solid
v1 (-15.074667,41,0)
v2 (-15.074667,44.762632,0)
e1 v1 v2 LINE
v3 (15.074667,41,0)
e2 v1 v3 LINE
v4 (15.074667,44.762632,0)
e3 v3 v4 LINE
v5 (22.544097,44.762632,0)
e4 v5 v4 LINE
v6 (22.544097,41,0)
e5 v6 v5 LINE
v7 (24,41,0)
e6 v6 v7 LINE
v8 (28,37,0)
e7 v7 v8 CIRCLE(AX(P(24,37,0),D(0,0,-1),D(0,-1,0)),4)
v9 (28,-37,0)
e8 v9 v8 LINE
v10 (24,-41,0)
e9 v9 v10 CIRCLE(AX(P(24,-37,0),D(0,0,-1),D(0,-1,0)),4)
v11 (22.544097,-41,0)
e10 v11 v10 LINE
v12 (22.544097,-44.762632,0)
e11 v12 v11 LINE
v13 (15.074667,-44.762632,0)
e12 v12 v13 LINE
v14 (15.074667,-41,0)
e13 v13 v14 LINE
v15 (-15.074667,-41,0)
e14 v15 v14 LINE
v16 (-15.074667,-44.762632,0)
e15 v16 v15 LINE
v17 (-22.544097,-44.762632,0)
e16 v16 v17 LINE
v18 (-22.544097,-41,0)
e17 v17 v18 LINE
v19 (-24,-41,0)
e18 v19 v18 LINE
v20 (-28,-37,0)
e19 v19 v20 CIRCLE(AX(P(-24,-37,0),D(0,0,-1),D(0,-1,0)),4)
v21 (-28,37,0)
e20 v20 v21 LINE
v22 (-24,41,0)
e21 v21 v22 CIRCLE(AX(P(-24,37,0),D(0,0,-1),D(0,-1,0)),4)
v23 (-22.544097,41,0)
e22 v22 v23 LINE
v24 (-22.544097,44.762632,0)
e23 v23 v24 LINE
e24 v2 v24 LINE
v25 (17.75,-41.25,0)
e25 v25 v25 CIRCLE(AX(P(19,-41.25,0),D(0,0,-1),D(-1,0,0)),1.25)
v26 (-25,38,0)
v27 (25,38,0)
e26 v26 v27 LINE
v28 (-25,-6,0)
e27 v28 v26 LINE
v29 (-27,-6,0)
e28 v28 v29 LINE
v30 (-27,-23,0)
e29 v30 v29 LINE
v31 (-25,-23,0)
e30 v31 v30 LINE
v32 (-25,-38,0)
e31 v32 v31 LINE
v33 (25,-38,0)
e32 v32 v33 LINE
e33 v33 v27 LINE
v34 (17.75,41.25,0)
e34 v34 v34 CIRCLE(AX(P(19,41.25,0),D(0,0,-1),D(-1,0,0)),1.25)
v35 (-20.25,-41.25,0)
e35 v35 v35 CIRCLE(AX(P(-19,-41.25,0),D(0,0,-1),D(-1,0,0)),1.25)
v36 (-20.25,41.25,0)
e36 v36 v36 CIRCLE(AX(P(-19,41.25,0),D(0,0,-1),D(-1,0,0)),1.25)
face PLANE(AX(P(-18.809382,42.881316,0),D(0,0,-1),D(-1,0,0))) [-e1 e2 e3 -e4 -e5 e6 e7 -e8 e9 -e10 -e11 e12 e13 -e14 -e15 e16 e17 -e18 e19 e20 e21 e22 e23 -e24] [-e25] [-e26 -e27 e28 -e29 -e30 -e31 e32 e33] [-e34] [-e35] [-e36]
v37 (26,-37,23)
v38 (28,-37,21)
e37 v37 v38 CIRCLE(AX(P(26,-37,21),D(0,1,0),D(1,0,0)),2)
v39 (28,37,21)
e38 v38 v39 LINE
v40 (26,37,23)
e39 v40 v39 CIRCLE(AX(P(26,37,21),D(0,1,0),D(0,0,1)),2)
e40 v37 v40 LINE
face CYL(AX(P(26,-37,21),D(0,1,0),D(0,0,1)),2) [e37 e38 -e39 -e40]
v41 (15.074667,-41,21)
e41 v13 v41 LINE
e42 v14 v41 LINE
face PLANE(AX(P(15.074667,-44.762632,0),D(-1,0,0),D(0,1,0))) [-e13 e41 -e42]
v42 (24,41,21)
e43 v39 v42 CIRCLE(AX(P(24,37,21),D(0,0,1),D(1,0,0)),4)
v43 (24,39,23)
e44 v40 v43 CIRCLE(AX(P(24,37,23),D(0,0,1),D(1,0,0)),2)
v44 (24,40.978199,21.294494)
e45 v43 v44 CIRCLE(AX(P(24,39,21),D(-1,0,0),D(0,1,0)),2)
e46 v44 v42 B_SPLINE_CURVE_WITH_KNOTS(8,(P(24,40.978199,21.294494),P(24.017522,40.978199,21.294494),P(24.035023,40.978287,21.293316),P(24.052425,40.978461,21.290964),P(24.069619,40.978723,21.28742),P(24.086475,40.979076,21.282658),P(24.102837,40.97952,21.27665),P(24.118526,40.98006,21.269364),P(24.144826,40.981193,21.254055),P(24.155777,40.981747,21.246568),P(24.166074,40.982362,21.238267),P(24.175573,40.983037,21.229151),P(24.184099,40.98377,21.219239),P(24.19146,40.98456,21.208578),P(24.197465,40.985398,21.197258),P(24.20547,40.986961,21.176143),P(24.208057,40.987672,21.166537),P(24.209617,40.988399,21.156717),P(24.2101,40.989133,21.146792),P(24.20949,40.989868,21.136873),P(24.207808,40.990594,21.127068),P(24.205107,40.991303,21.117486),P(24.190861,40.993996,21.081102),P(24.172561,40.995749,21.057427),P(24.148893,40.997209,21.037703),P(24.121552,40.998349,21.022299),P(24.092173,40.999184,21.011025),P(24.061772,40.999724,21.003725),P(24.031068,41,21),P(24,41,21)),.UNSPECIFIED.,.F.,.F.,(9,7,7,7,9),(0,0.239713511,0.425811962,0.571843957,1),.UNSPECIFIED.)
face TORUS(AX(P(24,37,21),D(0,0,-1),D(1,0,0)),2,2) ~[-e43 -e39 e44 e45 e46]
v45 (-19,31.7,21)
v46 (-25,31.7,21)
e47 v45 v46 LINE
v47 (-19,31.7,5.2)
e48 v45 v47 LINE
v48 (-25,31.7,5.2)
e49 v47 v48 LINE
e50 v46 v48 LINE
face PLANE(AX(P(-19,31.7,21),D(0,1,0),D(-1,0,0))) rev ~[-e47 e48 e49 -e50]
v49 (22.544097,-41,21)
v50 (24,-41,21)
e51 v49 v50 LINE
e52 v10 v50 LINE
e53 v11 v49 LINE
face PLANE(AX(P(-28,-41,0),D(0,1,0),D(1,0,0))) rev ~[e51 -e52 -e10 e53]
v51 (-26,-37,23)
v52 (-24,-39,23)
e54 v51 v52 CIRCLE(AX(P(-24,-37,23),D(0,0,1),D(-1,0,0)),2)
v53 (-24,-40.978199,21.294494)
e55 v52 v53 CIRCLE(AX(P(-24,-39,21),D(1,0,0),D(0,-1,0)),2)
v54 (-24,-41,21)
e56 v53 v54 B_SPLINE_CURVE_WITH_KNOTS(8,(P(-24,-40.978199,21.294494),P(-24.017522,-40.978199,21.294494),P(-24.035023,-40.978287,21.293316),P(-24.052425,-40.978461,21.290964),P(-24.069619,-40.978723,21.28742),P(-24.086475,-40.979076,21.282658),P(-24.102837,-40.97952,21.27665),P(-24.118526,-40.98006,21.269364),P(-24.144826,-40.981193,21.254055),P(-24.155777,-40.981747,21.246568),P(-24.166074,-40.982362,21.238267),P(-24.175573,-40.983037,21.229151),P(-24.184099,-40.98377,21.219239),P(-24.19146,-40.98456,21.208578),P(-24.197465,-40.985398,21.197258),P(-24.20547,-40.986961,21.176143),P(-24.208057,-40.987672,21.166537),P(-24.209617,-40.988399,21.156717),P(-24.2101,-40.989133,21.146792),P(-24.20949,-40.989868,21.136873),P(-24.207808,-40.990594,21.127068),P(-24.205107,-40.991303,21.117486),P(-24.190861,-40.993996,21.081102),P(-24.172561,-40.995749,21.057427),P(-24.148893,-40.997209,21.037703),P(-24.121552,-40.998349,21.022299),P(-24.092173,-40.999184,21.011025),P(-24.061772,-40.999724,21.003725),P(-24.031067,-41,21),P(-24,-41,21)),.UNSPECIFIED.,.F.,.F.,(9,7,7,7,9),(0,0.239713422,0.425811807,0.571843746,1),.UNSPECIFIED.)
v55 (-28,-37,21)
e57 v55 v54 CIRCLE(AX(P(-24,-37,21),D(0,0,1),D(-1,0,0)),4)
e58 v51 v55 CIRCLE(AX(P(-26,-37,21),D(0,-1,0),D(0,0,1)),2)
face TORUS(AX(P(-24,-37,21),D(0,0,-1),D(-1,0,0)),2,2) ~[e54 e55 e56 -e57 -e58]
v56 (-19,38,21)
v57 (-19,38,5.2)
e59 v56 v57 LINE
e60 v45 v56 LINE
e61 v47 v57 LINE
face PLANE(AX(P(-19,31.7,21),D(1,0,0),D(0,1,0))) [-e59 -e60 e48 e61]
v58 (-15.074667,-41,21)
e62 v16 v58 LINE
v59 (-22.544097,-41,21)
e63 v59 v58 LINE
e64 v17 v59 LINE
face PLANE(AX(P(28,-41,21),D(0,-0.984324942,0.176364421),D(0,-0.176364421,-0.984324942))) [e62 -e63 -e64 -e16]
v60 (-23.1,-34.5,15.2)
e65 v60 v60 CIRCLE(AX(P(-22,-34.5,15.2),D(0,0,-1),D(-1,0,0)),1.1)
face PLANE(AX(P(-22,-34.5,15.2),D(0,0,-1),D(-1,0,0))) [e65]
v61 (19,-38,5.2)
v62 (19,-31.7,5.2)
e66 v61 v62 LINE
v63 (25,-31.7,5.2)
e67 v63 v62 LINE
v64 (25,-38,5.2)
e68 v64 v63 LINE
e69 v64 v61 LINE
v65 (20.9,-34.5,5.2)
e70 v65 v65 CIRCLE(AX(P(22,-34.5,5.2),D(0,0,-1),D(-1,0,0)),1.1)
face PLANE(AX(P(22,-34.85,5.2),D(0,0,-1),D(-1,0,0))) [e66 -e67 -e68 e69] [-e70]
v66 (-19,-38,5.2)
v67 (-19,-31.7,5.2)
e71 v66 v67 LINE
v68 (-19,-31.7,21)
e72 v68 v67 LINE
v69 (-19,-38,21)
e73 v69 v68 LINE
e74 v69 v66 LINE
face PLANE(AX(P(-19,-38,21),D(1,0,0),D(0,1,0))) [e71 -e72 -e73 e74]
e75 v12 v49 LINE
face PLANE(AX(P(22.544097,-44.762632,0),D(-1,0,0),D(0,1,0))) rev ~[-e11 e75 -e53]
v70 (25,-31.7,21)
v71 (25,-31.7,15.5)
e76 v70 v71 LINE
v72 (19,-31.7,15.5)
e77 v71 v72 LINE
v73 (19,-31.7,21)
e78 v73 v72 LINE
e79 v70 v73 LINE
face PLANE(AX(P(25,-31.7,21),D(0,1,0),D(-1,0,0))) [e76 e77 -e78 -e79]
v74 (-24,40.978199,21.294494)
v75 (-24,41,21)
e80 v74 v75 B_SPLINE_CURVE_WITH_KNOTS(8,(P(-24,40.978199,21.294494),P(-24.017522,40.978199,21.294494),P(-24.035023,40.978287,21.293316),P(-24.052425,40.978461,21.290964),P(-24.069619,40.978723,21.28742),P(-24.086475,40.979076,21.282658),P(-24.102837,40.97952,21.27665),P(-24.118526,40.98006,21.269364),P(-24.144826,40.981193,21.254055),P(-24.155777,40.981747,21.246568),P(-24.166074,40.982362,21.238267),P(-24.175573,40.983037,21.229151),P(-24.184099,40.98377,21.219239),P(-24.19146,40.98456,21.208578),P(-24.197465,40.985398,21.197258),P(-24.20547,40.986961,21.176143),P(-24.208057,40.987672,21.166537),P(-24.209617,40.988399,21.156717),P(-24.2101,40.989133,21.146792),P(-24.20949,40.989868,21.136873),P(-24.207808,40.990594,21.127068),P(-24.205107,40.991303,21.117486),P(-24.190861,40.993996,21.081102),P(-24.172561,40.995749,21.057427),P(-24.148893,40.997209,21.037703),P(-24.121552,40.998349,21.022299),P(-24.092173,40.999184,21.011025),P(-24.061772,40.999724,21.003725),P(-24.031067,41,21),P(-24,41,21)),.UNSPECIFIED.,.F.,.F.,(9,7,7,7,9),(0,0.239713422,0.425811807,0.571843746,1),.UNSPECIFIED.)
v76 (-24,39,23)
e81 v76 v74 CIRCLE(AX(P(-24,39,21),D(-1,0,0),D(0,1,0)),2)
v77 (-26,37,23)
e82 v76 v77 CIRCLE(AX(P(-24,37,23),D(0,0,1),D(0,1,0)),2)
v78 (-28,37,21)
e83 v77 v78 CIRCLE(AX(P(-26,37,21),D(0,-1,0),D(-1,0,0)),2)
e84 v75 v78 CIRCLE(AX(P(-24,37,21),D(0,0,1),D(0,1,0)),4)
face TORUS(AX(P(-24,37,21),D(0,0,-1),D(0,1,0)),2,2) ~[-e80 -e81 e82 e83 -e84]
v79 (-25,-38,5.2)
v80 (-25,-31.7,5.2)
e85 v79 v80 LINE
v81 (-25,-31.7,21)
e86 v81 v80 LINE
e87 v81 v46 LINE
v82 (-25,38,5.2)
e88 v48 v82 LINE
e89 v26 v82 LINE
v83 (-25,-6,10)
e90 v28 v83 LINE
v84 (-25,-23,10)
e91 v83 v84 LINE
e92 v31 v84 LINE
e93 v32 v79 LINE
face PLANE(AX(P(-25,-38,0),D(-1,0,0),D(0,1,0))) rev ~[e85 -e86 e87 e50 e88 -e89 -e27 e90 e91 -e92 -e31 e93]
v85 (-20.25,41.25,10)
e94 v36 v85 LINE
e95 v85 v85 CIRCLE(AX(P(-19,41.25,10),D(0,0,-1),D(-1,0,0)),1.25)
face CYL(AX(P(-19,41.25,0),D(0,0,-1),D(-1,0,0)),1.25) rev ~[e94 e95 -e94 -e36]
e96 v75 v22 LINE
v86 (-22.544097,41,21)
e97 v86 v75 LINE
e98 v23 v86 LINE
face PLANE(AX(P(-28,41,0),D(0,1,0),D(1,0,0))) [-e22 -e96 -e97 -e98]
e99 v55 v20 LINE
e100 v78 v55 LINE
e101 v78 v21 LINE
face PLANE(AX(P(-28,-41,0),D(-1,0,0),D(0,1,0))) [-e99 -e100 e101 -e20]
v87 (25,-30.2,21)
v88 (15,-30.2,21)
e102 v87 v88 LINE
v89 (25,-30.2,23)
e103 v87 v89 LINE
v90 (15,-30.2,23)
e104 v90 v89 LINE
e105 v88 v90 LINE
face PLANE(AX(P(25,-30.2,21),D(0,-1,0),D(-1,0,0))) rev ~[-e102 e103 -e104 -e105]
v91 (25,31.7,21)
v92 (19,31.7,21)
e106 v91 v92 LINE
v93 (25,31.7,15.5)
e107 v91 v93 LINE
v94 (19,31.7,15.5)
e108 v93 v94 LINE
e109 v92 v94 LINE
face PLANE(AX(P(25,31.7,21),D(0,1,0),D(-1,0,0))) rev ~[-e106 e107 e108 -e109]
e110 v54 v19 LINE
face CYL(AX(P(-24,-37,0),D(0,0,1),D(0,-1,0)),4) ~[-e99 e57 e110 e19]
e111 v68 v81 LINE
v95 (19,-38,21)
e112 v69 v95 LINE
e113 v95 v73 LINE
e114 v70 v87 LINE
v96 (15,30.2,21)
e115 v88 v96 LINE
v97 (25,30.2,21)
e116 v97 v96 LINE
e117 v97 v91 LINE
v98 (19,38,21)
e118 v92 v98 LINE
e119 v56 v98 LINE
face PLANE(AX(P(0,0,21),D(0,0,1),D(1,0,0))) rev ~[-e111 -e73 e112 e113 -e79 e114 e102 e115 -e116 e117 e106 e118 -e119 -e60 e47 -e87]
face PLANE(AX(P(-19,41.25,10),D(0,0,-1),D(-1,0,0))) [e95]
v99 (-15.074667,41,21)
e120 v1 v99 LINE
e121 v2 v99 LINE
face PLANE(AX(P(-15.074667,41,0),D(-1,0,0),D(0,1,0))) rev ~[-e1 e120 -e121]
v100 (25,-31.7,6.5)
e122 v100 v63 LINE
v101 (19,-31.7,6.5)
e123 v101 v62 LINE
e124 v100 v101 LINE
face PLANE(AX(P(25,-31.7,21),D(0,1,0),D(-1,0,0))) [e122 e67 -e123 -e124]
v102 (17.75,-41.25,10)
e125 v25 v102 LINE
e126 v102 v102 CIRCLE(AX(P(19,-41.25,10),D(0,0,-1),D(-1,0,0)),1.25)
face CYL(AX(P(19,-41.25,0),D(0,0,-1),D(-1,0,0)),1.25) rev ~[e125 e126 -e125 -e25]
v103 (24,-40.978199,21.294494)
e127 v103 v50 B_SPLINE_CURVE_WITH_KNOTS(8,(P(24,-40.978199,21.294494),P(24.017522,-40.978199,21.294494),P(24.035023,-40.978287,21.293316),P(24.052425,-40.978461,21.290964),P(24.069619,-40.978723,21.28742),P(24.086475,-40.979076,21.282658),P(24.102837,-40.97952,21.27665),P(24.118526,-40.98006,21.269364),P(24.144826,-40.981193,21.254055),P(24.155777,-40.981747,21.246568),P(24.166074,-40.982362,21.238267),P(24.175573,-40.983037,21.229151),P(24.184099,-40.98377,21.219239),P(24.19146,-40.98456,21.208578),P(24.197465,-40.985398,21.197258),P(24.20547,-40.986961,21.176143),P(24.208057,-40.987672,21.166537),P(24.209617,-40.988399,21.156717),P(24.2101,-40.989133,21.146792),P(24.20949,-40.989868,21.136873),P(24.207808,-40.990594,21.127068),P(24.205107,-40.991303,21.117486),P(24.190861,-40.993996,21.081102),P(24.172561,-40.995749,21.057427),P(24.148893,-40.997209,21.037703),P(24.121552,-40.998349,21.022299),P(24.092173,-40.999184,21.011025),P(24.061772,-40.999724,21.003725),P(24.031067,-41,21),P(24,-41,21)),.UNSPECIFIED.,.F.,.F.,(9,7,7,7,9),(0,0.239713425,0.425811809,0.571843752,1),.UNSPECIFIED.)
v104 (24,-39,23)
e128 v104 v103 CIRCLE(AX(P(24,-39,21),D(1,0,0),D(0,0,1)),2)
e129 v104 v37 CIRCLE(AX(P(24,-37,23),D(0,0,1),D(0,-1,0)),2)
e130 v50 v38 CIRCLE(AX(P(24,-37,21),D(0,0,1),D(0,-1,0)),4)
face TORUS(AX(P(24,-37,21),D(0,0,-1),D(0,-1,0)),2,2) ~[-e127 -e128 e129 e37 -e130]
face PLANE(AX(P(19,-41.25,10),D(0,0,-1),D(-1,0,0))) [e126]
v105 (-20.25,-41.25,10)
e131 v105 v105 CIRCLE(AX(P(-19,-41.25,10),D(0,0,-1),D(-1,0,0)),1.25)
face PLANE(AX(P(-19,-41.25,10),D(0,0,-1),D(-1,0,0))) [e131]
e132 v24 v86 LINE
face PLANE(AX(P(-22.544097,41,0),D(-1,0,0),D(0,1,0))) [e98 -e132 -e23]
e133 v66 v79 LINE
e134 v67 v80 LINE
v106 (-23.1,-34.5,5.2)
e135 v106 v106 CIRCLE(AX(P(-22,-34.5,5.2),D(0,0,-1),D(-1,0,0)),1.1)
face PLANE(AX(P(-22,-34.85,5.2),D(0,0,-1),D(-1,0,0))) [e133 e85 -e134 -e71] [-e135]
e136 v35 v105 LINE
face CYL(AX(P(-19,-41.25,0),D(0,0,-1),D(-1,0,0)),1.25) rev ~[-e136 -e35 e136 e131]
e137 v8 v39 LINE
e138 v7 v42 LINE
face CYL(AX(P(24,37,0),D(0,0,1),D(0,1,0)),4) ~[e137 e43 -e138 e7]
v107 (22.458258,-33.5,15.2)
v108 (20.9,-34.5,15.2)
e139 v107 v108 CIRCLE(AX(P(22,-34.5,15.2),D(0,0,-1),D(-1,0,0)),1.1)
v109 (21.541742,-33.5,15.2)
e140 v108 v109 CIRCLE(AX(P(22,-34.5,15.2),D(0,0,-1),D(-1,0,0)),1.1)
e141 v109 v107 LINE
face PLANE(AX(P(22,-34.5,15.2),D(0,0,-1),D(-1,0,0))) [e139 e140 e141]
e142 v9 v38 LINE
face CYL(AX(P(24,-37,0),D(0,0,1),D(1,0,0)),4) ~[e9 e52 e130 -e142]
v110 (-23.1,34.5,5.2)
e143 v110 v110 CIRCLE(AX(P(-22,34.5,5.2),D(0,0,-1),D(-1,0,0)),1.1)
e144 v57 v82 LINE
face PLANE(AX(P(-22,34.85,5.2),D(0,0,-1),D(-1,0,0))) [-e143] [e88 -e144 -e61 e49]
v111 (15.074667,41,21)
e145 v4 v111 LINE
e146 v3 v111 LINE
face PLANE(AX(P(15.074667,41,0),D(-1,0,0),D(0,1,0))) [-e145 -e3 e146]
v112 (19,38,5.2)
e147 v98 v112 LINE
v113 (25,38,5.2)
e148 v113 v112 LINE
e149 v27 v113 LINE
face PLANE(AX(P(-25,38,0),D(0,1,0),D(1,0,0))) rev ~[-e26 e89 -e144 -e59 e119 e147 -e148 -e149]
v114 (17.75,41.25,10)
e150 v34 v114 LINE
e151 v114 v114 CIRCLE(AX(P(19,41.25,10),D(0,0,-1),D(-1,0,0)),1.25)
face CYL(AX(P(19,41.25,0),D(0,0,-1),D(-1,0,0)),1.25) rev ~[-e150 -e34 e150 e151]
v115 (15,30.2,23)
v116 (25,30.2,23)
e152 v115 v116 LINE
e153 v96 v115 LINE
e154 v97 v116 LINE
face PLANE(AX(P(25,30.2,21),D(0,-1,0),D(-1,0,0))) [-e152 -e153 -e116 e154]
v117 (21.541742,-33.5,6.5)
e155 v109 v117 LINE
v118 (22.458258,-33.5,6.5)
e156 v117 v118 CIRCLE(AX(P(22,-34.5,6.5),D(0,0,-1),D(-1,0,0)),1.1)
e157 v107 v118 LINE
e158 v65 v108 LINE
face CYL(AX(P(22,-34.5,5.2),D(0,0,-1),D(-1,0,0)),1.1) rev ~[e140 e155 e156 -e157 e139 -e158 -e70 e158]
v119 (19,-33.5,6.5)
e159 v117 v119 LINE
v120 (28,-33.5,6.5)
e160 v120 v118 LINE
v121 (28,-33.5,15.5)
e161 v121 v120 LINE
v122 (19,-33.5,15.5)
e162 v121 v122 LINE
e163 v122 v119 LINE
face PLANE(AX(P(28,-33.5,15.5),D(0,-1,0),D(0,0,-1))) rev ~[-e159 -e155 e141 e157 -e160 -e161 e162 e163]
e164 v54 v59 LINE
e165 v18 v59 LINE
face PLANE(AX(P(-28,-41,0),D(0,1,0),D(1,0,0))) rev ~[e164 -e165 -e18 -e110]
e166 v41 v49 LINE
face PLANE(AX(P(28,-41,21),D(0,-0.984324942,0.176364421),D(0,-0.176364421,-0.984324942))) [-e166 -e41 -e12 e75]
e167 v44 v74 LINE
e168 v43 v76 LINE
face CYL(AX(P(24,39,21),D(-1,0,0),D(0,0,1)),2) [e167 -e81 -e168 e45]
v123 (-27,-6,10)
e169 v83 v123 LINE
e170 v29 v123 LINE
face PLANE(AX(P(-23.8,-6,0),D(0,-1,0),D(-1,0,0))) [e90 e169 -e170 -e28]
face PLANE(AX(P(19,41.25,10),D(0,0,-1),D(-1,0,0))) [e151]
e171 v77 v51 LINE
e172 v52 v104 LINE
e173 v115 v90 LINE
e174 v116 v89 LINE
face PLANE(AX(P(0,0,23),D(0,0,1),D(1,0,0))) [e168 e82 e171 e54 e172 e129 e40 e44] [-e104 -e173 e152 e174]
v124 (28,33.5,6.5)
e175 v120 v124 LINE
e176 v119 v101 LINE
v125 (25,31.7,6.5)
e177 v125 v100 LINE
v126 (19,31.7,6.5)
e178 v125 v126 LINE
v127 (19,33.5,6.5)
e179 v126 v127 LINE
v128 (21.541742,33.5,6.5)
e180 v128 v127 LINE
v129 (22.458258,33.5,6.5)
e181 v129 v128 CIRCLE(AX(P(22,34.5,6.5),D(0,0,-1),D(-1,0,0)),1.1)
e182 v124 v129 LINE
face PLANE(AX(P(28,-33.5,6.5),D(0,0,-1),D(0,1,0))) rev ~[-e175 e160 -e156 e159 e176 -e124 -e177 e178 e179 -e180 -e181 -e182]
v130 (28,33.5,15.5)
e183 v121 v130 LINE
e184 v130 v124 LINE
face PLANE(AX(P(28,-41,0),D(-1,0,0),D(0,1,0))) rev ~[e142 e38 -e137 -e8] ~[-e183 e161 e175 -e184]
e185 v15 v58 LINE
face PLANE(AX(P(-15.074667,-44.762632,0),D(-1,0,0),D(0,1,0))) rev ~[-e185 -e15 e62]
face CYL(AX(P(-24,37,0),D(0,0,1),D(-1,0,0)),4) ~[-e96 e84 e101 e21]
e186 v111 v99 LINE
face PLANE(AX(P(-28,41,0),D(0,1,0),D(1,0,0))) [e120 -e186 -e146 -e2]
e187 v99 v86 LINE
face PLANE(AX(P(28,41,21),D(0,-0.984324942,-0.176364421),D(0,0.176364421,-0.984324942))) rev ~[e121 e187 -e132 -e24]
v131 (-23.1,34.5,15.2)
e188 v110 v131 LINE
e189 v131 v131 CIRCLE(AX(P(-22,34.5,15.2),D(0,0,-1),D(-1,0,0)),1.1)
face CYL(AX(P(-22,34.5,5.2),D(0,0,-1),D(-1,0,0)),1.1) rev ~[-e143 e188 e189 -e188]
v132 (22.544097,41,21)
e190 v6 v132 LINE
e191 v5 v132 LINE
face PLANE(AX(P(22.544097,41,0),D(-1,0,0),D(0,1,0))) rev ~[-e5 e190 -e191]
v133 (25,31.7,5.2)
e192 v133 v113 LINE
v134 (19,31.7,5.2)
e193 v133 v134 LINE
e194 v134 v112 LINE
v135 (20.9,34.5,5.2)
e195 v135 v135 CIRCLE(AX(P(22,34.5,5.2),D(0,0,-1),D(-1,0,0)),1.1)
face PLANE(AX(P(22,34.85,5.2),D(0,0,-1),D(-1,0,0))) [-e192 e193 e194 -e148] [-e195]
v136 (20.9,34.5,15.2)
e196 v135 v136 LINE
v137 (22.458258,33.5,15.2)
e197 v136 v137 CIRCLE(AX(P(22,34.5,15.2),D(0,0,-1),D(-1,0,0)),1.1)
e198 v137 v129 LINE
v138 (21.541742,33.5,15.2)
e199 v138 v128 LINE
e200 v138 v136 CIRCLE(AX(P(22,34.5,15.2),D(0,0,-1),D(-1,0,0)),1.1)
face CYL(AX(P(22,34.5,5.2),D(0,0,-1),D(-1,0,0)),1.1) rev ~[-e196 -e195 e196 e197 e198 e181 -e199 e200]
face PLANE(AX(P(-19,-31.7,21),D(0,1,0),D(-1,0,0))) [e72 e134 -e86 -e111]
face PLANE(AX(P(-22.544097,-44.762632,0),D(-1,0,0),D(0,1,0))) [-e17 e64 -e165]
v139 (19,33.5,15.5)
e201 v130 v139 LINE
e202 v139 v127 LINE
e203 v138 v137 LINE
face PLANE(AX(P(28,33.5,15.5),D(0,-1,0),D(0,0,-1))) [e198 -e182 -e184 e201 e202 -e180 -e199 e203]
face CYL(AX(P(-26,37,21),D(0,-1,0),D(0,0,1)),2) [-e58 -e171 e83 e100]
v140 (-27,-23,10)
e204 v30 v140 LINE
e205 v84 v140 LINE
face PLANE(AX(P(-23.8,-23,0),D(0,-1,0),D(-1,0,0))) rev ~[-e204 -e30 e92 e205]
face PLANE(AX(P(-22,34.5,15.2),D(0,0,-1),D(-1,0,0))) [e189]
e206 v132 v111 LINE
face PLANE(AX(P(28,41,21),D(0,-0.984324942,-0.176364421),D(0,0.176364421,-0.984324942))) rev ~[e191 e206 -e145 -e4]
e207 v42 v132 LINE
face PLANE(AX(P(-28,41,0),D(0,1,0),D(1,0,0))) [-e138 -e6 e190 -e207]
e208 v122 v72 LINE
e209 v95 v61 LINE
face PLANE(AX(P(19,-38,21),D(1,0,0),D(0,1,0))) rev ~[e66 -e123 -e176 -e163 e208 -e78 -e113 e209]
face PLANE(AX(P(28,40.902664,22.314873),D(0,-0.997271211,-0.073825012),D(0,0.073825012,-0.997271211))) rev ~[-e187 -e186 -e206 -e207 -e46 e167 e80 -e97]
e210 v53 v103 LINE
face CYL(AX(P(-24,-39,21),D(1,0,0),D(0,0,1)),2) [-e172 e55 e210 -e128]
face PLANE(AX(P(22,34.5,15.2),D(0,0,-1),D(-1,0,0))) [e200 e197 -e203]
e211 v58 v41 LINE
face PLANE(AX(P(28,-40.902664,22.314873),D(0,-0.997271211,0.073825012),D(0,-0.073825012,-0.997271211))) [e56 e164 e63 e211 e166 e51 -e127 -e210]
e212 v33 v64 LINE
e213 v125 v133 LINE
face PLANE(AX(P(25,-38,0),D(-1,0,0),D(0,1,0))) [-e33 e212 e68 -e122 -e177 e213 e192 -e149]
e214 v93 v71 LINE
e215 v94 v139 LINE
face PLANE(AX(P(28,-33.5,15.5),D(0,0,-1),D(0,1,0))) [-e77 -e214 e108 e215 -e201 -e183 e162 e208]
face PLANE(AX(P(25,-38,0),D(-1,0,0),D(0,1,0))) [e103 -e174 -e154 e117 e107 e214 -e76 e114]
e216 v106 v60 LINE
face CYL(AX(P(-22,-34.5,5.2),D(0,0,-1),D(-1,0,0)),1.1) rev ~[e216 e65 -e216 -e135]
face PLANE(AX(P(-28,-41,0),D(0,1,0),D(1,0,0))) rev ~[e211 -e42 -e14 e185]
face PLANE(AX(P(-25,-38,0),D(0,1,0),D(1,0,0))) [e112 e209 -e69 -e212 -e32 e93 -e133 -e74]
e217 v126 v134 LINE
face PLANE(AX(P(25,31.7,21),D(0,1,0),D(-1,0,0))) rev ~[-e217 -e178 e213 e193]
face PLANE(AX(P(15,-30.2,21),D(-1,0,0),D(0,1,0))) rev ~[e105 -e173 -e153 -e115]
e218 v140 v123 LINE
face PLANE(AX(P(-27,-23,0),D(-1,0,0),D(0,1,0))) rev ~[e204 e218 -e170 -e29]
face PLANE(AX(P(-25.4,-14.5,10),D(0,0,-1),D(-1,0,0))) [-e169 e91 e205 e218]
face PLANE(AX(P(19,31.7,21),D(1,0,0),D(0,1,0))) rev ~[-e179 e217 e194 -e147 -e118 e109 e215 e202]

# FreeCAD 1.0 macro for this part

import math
import FreeCAD as App
import Part
import Sketcher
from FreeCAD import Vector


def edges_at(feature, points):
    """Names of the edges that pass closest to the given points."""
    edges = feature.Shape.Edges
    near = lambda p: min(range(len(edges)), key=lambda i: edges[i].distToShape(Part.Vertex(*p))[0])
    return sorted({f"Edge{near(p) + 1}" for p in points})

doc = App.newDocument("Part")
body = doc.addObject("PartDesign::Body", "Body")

# Sketch on XY plane
sketch1 = body.newObject("Sketcher::SketchObject", "Sketch")
sketch1.AttachmentSupport = (doc.getObject("XY_Plane"), [""])
sketch1.MapMode = "FlatFace"
sketch1.addGeometry([
    Part.LineSegment(Vector(-28, 41, 0), Vector(-28, -41, 0)),  # 0
    Part.LineSegment(Vector(-28, -41, 0), Vector(28, -41, 0)),  # 1
    Part.LineSegment(Vector(28, -41, 0), Vector(28, 41, 0)),  # 2
    Part.LineSegment(Vector(28, 41, 0), Vector(-28, 41, 0)),  # 3
    Part.LineSegment(Vector(25, -38, 0), Vector(-25, -38, 0)),  # 4
    Part.LineSegment(Vector(-25, -38, 0), Vector(-25, 38, 0)),  # 5
    Part.LineSegment(Vector(-25, 38, 0), Vector(25, 38, 0)),  # 6
    Part.LineSegment(Vector(25, 38, 0), Vector(25, -38, 0)),  # 7
], False)
sketch1.addConstraint([
    Sketcher.Constraint("Coincident", 0, 2, 1, 1),
    Sketcher.Constraint("Coincident", 1, 2, 2, 1),
    Sketcher.Constraint("Coincident", 2, 2, 3, 1),
    Sketcher.Constraint("Coincident", 3, 2, 0, 1),
    Sketcher.Constraint("Coincident", 4, 2, 5, 1),
    Sketcher.Constraint("Coincident", 5, 2, 6, 1),
    Sketcher.Constraint("Coincident", 6, 2, 7, 1),
    Sketcher.Constraint("Coincident", 7, 2, 4, 1),
    Sketcher.Constraint("Vertical", 0),
    Sketcher.Constraint("Horizontal", 1),
    Sketcher.Constraint("Vertical", 2),
    Sketcher.Constraint("Horizontal", 3),
    Sketcher.Constraint("Horizontal", 4),
    Sketcher.Constraint("Vertical", 5),
    Sketcher.Constraint("Horizontal", 6),
    Sketcher.Constraint("Vertical", 7),
    Sketcher.Constraint("Symmetric", 0, 2, 2, 2, -1, 1),
    Sketcher.Constraint("Symmetric", 4, 2, 6, 2, -1, 1),
    Sketcher.Constraint("DistanceX", 1, 1, 1, 2, 56.0),
    Sketcher.Constraint("DistanceX", 4, 2, 4, 1, 50.0),
    Sketcher.Constraint("DistanceY", 0, 2, 0, 1, 82.0),
    Sketcher.Constraint("DistanceY", 5, 1, 5, 2, 76.0),
])
pad1 = body.newObject("PartDesign::Pad", "Pad")
pad1.Profile = sketch1
pad1.Length = 22
doc.recompute()

fillet = body.newObject("PartDesign::Fillet", "Fillet")
fillet.Base = (pad1, edges_at(pad1, [(-28, 41, 11)]))
fillet.Radius = 4
doc.recompute()

fillet2 = body.newObject("PartDesign::Fillet", "Fillet001")
fillet2.Base = (fillet, edges_at(fillet, [(28, 41, 11)]))
fillet2.Radius = 4
doc.recompute()

fillet3 = body.newObject("PartDesign::Fillet", "Fillet002")
fillet3.Base = (fillet2, edges_at(fillet2, [(28, -41, 11)]))
fillet3.Radius = 4
doc.recompute()

fillet4 = body.newObject("PartDesign::Fillet", "Fillet003")
fillet4.Base = (fillet3, edges_at(fillet3, [(-28, -41, 11)]))
fillet4.Radius = 4

# Sketch on XY plane
sketch2 = body.newObject("Sketcher::SketchObject", "Sketch001")
sketch2.AttachmentSupport = (doc.getObject("XY_Plane"), [""])
sketch2.MapMode = "FlatFace"
sketch2.AttachmentOffset = App.Placement(Vector(0, 0, 22), App.Rotation())
sketch2.addGeometry([
    Part.LineSegment(Vector(-28, 37, 0), Vector(-28, -37, 0)),  # 0
    Part.ArcOfCircle(Part.Circle(Vector(-24, -37, 0), Vector(0, 0, 1), 4), math.radians(180), math.radians(270)),  # 1
    Part.LineSegment(Vector(-24, -41, 0), Vector(24, -41, 0)),  # 2
    Part.ArcOfCircle(Part.Circle(Vector(24, -37, 0), Vector(0, 0, 1), 4), math.radians(-90), math.radians(0)),  # 3
    Part.LineSegment(Vector(28, -37, 0), Vector(28, 37, 0)),  # 4
    Part.ArcOfCircle(Part.Circle(Vector(24, 37, 0), Vector(0, 0, 1), 4), math.radians(0), math.radians(90)),  # 5
    Part.LineSegment(Vector(24, 41, 0), Vector(-24, 41, 0)),  # 6
    Part.ArcOfCircle(Part.Circle(Vector(-24, 37, 0), Vector(0, 0, 1), 4), math.radians(90), math.radians(180)),  # 7
], False)
sketch2.addConstraint([
    Sketcher.Constraint("Tangent", 0, 2, 1, 1),
    Sketcher.Constraint("Tangent", 1, 2, 2, 1),
    Sketcher.Constraint("Tangent", 2, 2, 3, 1),
    Sketcher.Constraint("Tangent", 3, 2, 4, 1),
    Sketcher.Constraint("Tangent", 4, 2, 5, 1),
    Sketcher.Constraint("Tangent", 5, 2, 6, 1),
    Sketcher.Constraint("Tangent", 6, 2, 7, 1),
    Sketcher.Constraint("Tangent", 7, 2, 0, 1),
    Sketcher.Constraint("Vertical", 0),
    Sketcher.Constraint("Horizontal", 2),
    Sketcher.Constraint("Vertical", 4),
    Sketcher.Constraint("Horizontal", 6),
    Sketcher.Constraint("Equal", 1, 3),
    Sketcher.Constraint("Equal", 3, 5),
    Sketcher.Constraint("Equal", 5, 7),
    Sketcher.Constraint("Symmetric", 1, 3, 5, 3, -1, 1),
    Sketcher.Constraint("Radius", 1, 4.0),
    Sketcher.Constraint("DistanceX", 2, 1, 2, 2, 48.0),
    Sketcher.Constraint("DistanceY", 0, 2, 0, 1, 74.0),
])
pad2 = body.newObject("PartDesign::Pad", "Pad001")
pad2.Profile = sketch2
pad2.Type = "TwoLengths"
pad2.Length = 1
pad2.Length2 = 1
doc.recompute()

fillet5 = body.newObject("PartDesign::Fillet", "Fillet004")
fillet5.Base = (pad2, edges_at(pad2, [
    (-26.828, 39.828, 23),
    (-28, 0, 23),
    (-26.828, -39.828, 23),
    (0, -41, 23),
    (26.828, -39.828, 23),
    (28, 0, 23),
    (26.828, 39.828, 23),
    (0, 41, 23),
]))
fillet5.Radius = 2

# Sketch on XY plane
sketch3 = body.newObject("Sketcher::SketchObject", "Sketch002")
sketch3.AttachmentSupport = (doc.getObject("XY_Plane"), [""])
sketch3.MapMode = "FlatFace"
sketch3.AttachmentOffset = App.Placement(Vector(0, 0, 21), App.Rotation())
sketch3.addGeometry([
    Part.LineSegment(Vector(25, 38, 0), Vector(25, 32, 0)),  # 0
    Part.LineSegment(Vector(25, 32, 0), Vector(19, 32, 0)),  # 1
    Part.LineSegment(Vector(19, 32, 0), Vector(19, 38, 0)),  # 2
    Part.LineSegment(Vector(19, 38, 0), Vector(25, 38, 0)),  # 3
    Part.LineSegment(Vector(25, -32, 0), Vector(25, -38, 0)),  # 4
    Part.LineSegment(Vector(25, -38, 0), Vector(19, -38, 0)),  # 5
    Part.LineSegment(Vector(19, -38, 0), Vector(19, -32, 0)),  # 6
    Part.LineSegment(Vector(19, -32, 0), Vector(25, -32, 0)),  # 7
    Part.LineSegment(Vector(-19, 38, 0), Vector(-19, 32, 0)),  # 8
    Part.LineSegment(Vector(-19, 32, 0), Vector(-25, 32, 0)),  # 9
    Part.LineSegment(Vector(-25, 32, 0), Vector(-25, 38, 0)),  # 10
    Part.LineSegment(Vector(-25, 38, 0), Vector(-19, 38, 0)),  # 11
    Part.LineSegment(Vector(-19, -32, 0), Vector(-19, -38, 0)),  # 12
    Part.LineSegment(Vector(-19, -38, 0), Vector(-25, -38, 0)),  # 13
    Part.LineSegment(Vector(-25, -38, 0), Vector(-25, -32, 0)),  # 14
    Part.LineSegment(Vector(-25, -32, 0), Vector(-19, -32, 0)),  # 15
], False)
sketch3.addConstraint([
    Sketcher.Constraint("Coincident", 0, 2, 1, 1),
    Sketcher.Constraint("Coincident", 1, 2, 2, 1),
    Sketcher.Constraint("Coincident", 2, 2, 3, 1),
    Sketcher.Constraint("Coincident", 3, 2, 0, 1),
    Sketcher.Constraint("Coincident", 4, 2, 5, 1),
    Sketcher.Constraint("Coincident", 5, 2, 6, 1),
    Sketcher.Constraint("Coincident", 6, 2, 7, 1),
    Sketcher.Constraint("Coincident", 7, 2, 4, 1),
    Sketcher.Constraint("Coincident", 8, 2, 9, 1),
    Sketcher.Constraint("Coincident", 9, 2, 10, 1),
    Sketcher.Constraint("Coincident", 10, 2, 11, 1),
    Sketcher.Constraint("Coincident", 11, 2, 8, 1),
    Sketcher.Constraint("Coincident", 12, 2, 13, 1),
    Sketcher.Constraint("Coincident", 13, 2, 14, 1),
    Sketcher.Constraint("Coincident", 14, 2, 15, 1),
    Sketcher.Constraint("Coincident", 15, 2, 12, 1),
    Sketcher.Constraint("Vertical", 0),
    Sketcher.Constraint("Horizontal", 1),
    Sketcher.Constraint("Vertical", 2),
    Sketcher.Constraint("Horizontal", 3),
    Sketcher.Constraint("Vertical", 4),
    Sketcher.Constraint("Horizontal", 5),
    Sketcher.Constraint("Vertical", 6),
    Sketcher.Constraint("Horizontal", 7),
    Sketcher.Constraint("Vertical", 8),
    Sketcher.Constraint("Horizontal", 9),
    Sketcher.Constraint("Vertical", 10),
    Sketcher.Constraint("Horizontal", 11),
    Sketcher.Constraint("Vertical", 12),
    Sketcher.Constraint("Horizontal", 13),
    Sketcher.Constraint("Vertical", 14),
    Sketcher.Constraint("Horizontal", 15),
    Sketcher.Constraint("Symmetric", 6, 2, 8, 2, -1, 1),
    Sketcher.Constraint("Symmetric", 4, 2, 10, 2, -1, 1),
    Sketcher.Constraint("Symmetric", 2, 2, 12, 2, -1, 1),
    Sketcher.Constraint("Symmetric", 0, 2, 14, 2, -1, 1),
    Sketcher.Constraint("Symmetric", 1, 2, 8, 2, -2),
    Sketcher.Constraint("Symmetric", 3, 2, 10, 2, -2),
    Sketcher.Constraint("DistanceX", 1, 2, 1, 1, 6.0),
    Sketcher.Constraint("DistanceY", 0, 2, 0, 1, 6.3),
    Sketcher.Constraint("DistanceX", -1, 1, 0, 2, 25.0),
    Sketcher.Constraint("DistanceY", -1, 1, 2, 2, 38.0),
])
pad3 = body.newObject("PartDesign::Pad", "Pad002")
pad3.Profile = sketch3
pad3.Length = 15.8
pad3.Reversed = True

# Sketch on XY plane
sketch4 = body.newObject("Sketcher::SketchObject", "Sketch003")
sketch4.AttachmentSupport = (doc.getObject("XY_Plane"), [""])
sketch4.MapMode = "FlatFace"
sketch4.AttachmentOffset = App.Placement(Vector(0, 0, 5.2), App.Rotation())
sketch4.addGeometry([
    Part.Circle(Vector(22, 34.5, 0), Vector(0, 0, 1), 0.8),
    Part.Circle(Vector(-22, 34.5, 0), Vector(0, 0, 1), 0.8),
    Part.Circle(Vector(-22, -34.5, 0), Vector(0, 0, 1), 0.8),
    Part.Circle(Vector(22, -34.5, 0), Vector(0, 0, 1), 0.8),
], False)
sketch4.addConstraint([
    Sketcher.Constraint("Equal", 0, 1),
    Sketcher.Constraint("Equal", 1, 2),
    Sketcher.Constraint("Equal", 2, 3),
    Sketcher.Constraint("Symmetric", 0, 3, 2, 3, -1, 1),
    Sketcher.Constraint("Symmetric", 1, 3, 3, 3, -1, 1),
    Sketcher.Constraint("Symmetric", 0, 3, 1, 3, -2),
    Sketcher.Constraint("Diameter", 0, 1.5),
    Sketcher.Constraint("DistanceX", -1, 1, 0, 3, 22.0),
    Sketcher.Constraint("DistanceY", 2, 3, 1, 3, 69.0),
])
pocket1 = body.newObject("PartDesign::Pocket", "Pocket")
pocket1.Profile = sketch4
pocket1.Length = 10
pocket1.Reversed = True

# Sketch on XY plane
sketch5 = body.newObject("Sketcher::SketchObject", "Sketch004")
sketch5.AttachmentSupport = (doc.getObject("XY_Plane"), [""])
sketch5.MapMode = "FlatFace"
sketch5.AttachmentOffset = App.Placement(Vector(0, 0, 21), App.Rotation())
sketch5.addGeometry([
    Part.LineSegment(Vector(25, 30, 0), Vector(25, -30, 0)),
    Part.LineSegment(Vector(25, -30, 0), Vector(15, -30, 0)),
    Part.LineSegment(Vector(15, -30, 0), Vector(15, 30, 0)),
    Part.LineSegment(Vector(15, 30, 0), Vector(25, 30, 0)),
], False)
sketch5.addConstraint([
    Sketcher.Constraint("Coincident", 0, 2, 1, 1),
    Sketcher.Constraint("Coincident", 1, 2, 2, 1),
    Sketcher.Constraint("Coincident", 2, 2, 3, 1),
    Sketcher.Constraint("Coincident", 3, 2, 0, 1),
    Sketcher.Constraint("Vertical", 0),
    Sketcher.Constraint("Horizontal", 1),
    Sketcher.Constraint("Vertical", 2),
    Sketcher.Constraint("Horizontal", 3),
    Sketcher.Constraint("DistanceX", 1, 2, 1, 1, 10.0),
    Sketcher.Constraint("DistanceY", 0, 2, 0, 1, 60.4),
    Sketcher.Constraint("DistanceX", -1, 1, 0, 2, 25.0),
    Sketcher.Constraint("DistanceY", 0, 2, -1, 1, 30.2),
])
pocket2 = body.newObject("PartDesign::Pocket", "Pocket001")
pocket2.Profile = sketch5
pocket2.Length = 10
pocket2.Reversed = True

# Sketch on YZ plane
sketch6 = body.newObject("Sketcher::SketchObject", "Sketch005")
sketch6.AttachmentSupport = (doc.getObject("YZ_Plane"), [""])
sketch6.MapMode = "FlatFace"
sketch6.AttachmentOffset = App.Placement(Vector(0, 0, 28), App.Rotation())
sketch6.addGeometry([
    Part.LineSegment(Vector(34, 16, 0), Vector(-34, 16, 0)),
    Part.LineSegment(Vector(-34, 16, 0), Vector(-34, 6, 0)),
    Part.LineSegment(Vector(-34, 6, 0), Vector(34, 6, 0)),
    Part.LineSegment(Vector(34, 6, 0), Vector(34, 16, 0)),
], False)
sketch6.addConstraint([
    Sketcher.Constraint("Coincident", 0, 2, 1, 1),
    Sketcher.Constraint("Coincident", 1, 2, 2, 1),
    Sketcher.Constraint("Coincident", 2, 2, 3, 1),
    Sketcher.Constraint("Coincident", 3, 2, 0, 1),
    Sketcher.Constraint("Horizontal", 0),
    Sketcher.Constraint("Vertical", 1),
    Sketcher.Constraint("Horizontal", 2),
    Sketcher.Constraint("Vertical", 3),
    Sketcher.Constraint("DistanceX", 0, 2, 0, 1, 67.0),
    Sketcher.Constraint("DistanceY", 1, 2, 1, 1, 9.0),
    Sketcher.Constraint("DistanceX", 0, 2, -1, 1, 33.5),
    Sketcher.Constraint("DistanceY", -1, 1, 0, 2, 15.5),
])
pocket3 = body.newObject("PartDesign::Pocket", "Pocket002")
pocket3.Profile = sketch6
pocket3.Length = 10

# Sketch on XY plane
sketch7 = body.newObject("Sketcher::SketchObject", "Sketch006")
sketch7.AttachmentSupport = (doc.getObject("XY_Plane"), [""])
sketch7.MapMode = "FlatFace"
sketch7.addGeometry([
    Part.LineSegment(Vector(-23.8, -6, 0), Vector(-23.8, -23, 0)),
    Part.LineSegment(Vector(-23.8, -23, 0), Vector(-27, -23, 0)),
    Part.LineSegment(Vector(-27, -23, 0), Vector(-27, -6, 0)),
    Part.LineSegment(Vector(-27, -6, 0), Vector(-23.8, -6, 0)),
], False)
sketch7.addConstraint([
    Sketcher.Constraint("Coincident", 0, 2, 1, 1),
    Sketcher.Constraint("Coincident", 1, 2, 2, 1),
    Sketcher.Constraint("Coincident", 2, 2, 3, 1),
    Sketcher.Constraint("Coincident", 3, 2, 0, 1),
    Sketcher.Constraint("Vertical", 0),
    Sketcher.Constraint("Horizontal", 1),
    Sketcher.Constraint("Vertical", 2),
    Sketcher.Constraint("Horizontal", 3),
    Sketcher.Constraint("DistanceY", 0, 2, 0, 1, 17.0),
    Sketcher.Constraint("DistanceX", 1, 2, 1, 1, 3.2),
    Sketcher.Constraint("DistanceY", 0, 2, -1, 1, 23.0),
    Sketcher.Constraint("DistanceX", 1, 2, -1, 1, 27.0),
])
pocket4 = body.newObject("PartDesign::Pocket", "Pocket003")
pocket4.Profile = sketch7
pocket4.Length = 10
pocket4.Reversed = True

# Sketch on XY plane
sketch8 = body.newObject("Sketcher::SketchObject", "Sketch007")
sketch8.AttachmentSupport = (doc.getObject("XY_Plane"), [""])
sketch8.MapMode = "FlatFace"
sketch8.addGeometry([
    Part.LineSegment(Vector(-15.1, 44.8, 0), Vector(-15.1, 41, 0)),  # 0
    Part.LineSegment(Vector(-15.1, 41, 0), Vector(-22.5, 41, 0)),  # 1
    Part.LineSegment(Vector(-22.5, 41, 0), Vector(-22.5, 44.8, 0)),  # 2
    Part.LineSegment(Vector(-22.5, 44.8, 0), Vector(-15.1, 44.8, 0)),  # 3
    Part.LineSegment(Vector(22.5, 44.8, 0), Vector(22.5, 41, 0)),  # 4
    Part.LineSegment(Vector(22.5, 41, 0), Vector(15.1, 41, 0)),  # 5
    Part.LineSegment(Vector(15.1, 41, 0), Vector(15.1, 44.8, 0)),  # 6
    Part.LineSegment(Vector(15.1, 44.8, 0), Vector(22.5, 44.8, 0)),  # 7
    Part.LineSegment(Vector(22.5, -41, 0), Vector(22.5, -44.8, 0)),  # 8
    Part.LineSegment(Vector(22.5, -44.8, 0), Vector(15.1, -44.8, 0)),  # 9
    Part.LineSegment(Vector(15.1, -44.8, 0), Vector(15.1, -41, 0)),  # 10
    Part.LineSegment(Vector(15.1, -41, 0), Vector(22.5, -41, 0)),  # 11
    Part.LineSegment(Vector(-15.1, -41, 0), Vector(-15.1, -44.8, 0)),  # 12
    Part.LineSegment(Vector(-15.1, -44.8, 0), Vector(-22.5, -44.8, 0)),  # 13
    Part.LineSegment(Vector(-22.5, -44.8, 0), Vector(-22.5, -41, 0)),  # 14
    Part.LineSegment(Vector(-22.5, -41, 0), Vector(-15.1, -41, 0)),  # 15
], False)
sketch8.addConstraint([
    Sketcher.Constraint("Coincident", 0, 2, 1, 1),
    Sketcher.Constraint("Coincident", 1, 2, 2, 1),
    Sketcher.Constraint("Coincident", 2, 2, 3, 1),
    Sketcher.Constraint("Coincident", 3, 2, 0, 1),
    Sketcher.Constraint("Coincident", 4, 2, 5, 1),
    Sketcher.Constraint("Coincident", 5, 2, 6, 1),
    Sketcher.Constraint("Coincident", 6, 2, 7, 1),
    Sketcher.Constraint("Coincident", 7, 2, 4, 1),
    Sketcher.Constraint("Coincident", 8, 2, 9, 1),
    Sketcher.Constraint("Coincident", 9, 2, 10, 1),
    Sketcher.Constraint("Coincident", 10, 2, 11, 1),
    Sketcher.Constraint("Coincident", 11, 2, 8, 1),
    Sketcher.Constraint("Coincident", 12, 2, 13, 1),
    Sketcher.Constraint("Coincident", 13, 2, 14, 1),
    Sketcher.Constraint("Coincident", 14, 2, 15, 1),
    Sketcher.Constraint("Coincident", 15, 2, 12, 1),
    Sketcher.Constraint("Vertical", 0),
    Sketcher.Constraint("Horizontal", 1),
    Sketcher.Constraint("Vertical", 2),
    Sketcher.Constraint("Horizontal", 3),
    Sketcher.Constraint("Vertical", 4),
    Sketcher.Constraint("Horizontal", 5),
    Sketcher.Constraint("Vertical", 6),
    Sketcher.Constraint("Horizontal", 7),
    Sketcher.Constraint("Vertical", 8),
    Sketcher.Constraint("Horizontal", 9),
    Sketcher.Constraint("Vertical", 10),
    Sketcher.Constraint("Horizontal", 11),
    Sketcher.Constraint("Vertical", 12),
    Sketcher.Constraint("Horizontal", 13),
    Sketcher.Constraint("Vertical", 14),
    Sketcher.Constraint("Horizontal", 15),
    Sketcher.Constraint("Symmetric", 2, 2, 8, 2, -1, 1),
    Sketcher.Constraint("Symmetric", 0, 2, 10, 2, -1, 1),
    Sketcher.Constraint("Symmetric", 6, 2, 12, 2, -1, 1),
    Sketcher.Constraint("Symmetric", 4, 2, 14, 2, -1, 1),
    Sketcher.Constraint("Symmetric", 1, 2, 4, 2, -2),
    Sketcher.Constraint("Symmetric", 3, 2, 6, 2, -2),
    Sketcher.Constraint("DistanceY", -1, 1, 0, 2, 41.0),
    Sketcher.Constraint("DistanceX", 1, 2, 1, 1, 7.46943),
    Sketcher.Constraint("DistanceY", 0, 2, 0, 1, 3.762632),
    Sketcher.Constraint("DistanceX", 0, 2, -1, 1, 15.074667),
])
pad4 = body.newObject("PartDesign::Pad", "Pad003")
pad4.Profile = sketch8
pad4.Length = 22

# Sketch on YZ plane
sketch9 = body.newObject("Sketcher::SketchObject", "Sketch008")
sketch9.AttachmentSupport = (doc.getObject("YZ_Plane"), [""])
sketch9.MapMode = "FlatFace"
sketch9.AttachmentOffset = App.Placement(Vector(0, 0, 28), App.Rotation())
sketch9.addGeometry([
    Part.LineSegment(Vector(41, 21, 0), Vector(44.8, 0, 0)),  # 0
    Part.LineSegment(Vector(44.8, 0, 0), Vector(48.5, -0.1, 0)),  # 1
    Part.LineSegment(Vector(48.5, -0.1, 0), Vector(46.4, 25.2, 0)),  # 2
    Part.LineSegment(Vector(46.4, 25.2, 0), Vector(40.9, 22.3, 0)),  # 3
    Part.LineSegment(Vector(40.9, 22.3, 0), Vector(41, 21, 0)),  # 4
    Part.LineSegment(Vector(-41, 21, 0), Vector(-40.9, 22.3, 0)),  # 5
    Part.LineSegment(Vector(-40.9, 22.3, 0), Vector(-46.4, 25.2, 0)),  # 6
    Part.LineSegment(Vector(-46.4, 25.2, 0), Vector(-48.5, -0.1, 0)),  # 7
    Part.LineSegment(Vector(-48.5, -0.1, 0), Vector(-44.8, 0, 0)),  # 8
    Part.LineSegment(Vector(-44.8, 0, 0), Vector(-41, 21, 0)),  # 9
], False)
sketch9.addConstraint([
    Sketcher.Constraint("Coincident", 0, 2, 1, 1),
    Sketcher.Constraint("Coincident", 1, 2, 2, 1),
    Sketcher.Constraint("Coincident", 2, 2, 3, 1),
    Sketcher.Constraint("Coincident", 3, 2, 4, 1),
    Sketcher.Constraint("Coincident", 4, 2, 0, 1),
    Sketcher.Constraint("Coincident", 5, 2, 6, 1),
    Sketcher.Constraint("Coincident", 6, 2, 7, 1),
    Sketcher.Constraint("Coincident", 7, 2, 8, 1),
    Sketcher.Constraint("Coincident", 8, 2, 9, 1),
    Sketcher.Constraint("Coincident", 9, 2, 5, 1),
    Sketcher.Constraint("Symmetric", 0, 2, 8, 2, -1, 1),
    Sketcher.Constraint("Symmetric", 3, 2, 5, 2, -2),
    Sketcher.Constraint("Symmetric", 2, 2, 6, 2, -2),
    Sketcher.Constraint("Symmetric", 1, 2, 7, 2, -2),
    Sketcher.Constraint("Symmetric", 4, 2, 9, 2, -2),
    Sketcher.Constraint("PointOnObject", 0, 2, -1),
    Sketcher.Constraint("DistanceX", -1, 1, 4, 2, 41.0),
    Sketcher.Constraint("DistanceY", -1, 1, 4, 2, 21.0),
    Sketcher.Constraint("DistanceY", -1, 1, 2, 2, 25.204298),
    Sketcher.Constraint("DistanceX", 0, 2, 2, 2, 1.673598),
    Sketcher.Constraint("Distance", 0, 21.334418),
    Sketcher.Constraint("Distance", 2, 25.39047),
    Sketcher.Constraint("Distance", 4, 1.318471),
    Sketcher.Constraint("DistanceY", 1, 2, 2, 2, 25.30735),
    Sketcher.Constraint("DistanceX", 3, 2, 0, 2, 3.859968),
])
pocket5 = body.newObject("PartDesign::Pocket", "Pocket004")
pocket5.Profile = sketch9
pocket5.Length = 85

# Sketch on XY plane
sketch10 = body.newObject("Sketcher::SketchObject", "Sketch009")
sketch10.AttachmentSupport = (doc.getObject("XY_Plane"), [""])
sketch10.MapMode = "FlatFace"
sketch10.addGeometry([
    Part.Circle(Vector(19, 41.2, 0), Vector(0, 0, 1), 1.2),
    Part.Circle(Vector(-19, 41.2, 0), Vector(0, 0, 1), 1.2),
    Part.Circle(Vector(19, -41.2, 0), Vector(0, 0, 1), 1.2),
    Part.Circle(Vector(-19, -41.2, 0), Vector(0, 0, 1), 1.2),
], False)
sketch10.addConstraint([
    Sketcher.Constraint("Equal", 0, 1),
    Sketcher.Constraint("Equal", 1, 2),
    Sketcher.Constraint("Equal", 2, 3),
    Sketcher.Constraint("Symmetric", 1, 3, 2, 3, -1, 1),
    Sketcher.Constraint("Symmetric", 0, 3, 3, 3, -1, 1),
    Sketcher.Constraint("Symmetric", 0, 3, 1, 3, -2),
    Sketcher.Constraint("Diameter", 0, 2.5),
    Sketcher.Constraint("DistanceX", -1, 1, 0, 3, 19.0),
    Sketcher.Constraint("DistanceY", 2, 3, 0, 3, 82.5),
])
pocket6 = body.newObject("PartDesign::Pocket", "Pocket005")
pocket6.Profile = sketch10
pocket6.Length = 10
pocket6.Reversed = True

# Sketch on XY plane
sketch11 = body.newObject("Sketcher::SketchObject", "Sketch010")
sketch11.AttachmentSupport = (doc.getObject("XY_Plane"), [""])
sketch11.MapMode = "FlatFace"
sketch11.AttachmentOffset = App.Placement(Vector(0, 0, 5.2), App.Rotation())
sketch11.addGeometry([
    Part.Circle(Vector(22, 34.5, 0), Vector(0, 0, 1), 1.1),
    Part.Circle(Vector(-22, 34.5, 0), Vector(0, 0, 1), 1.1),
    Part.Circle(Vector(-22, -34.5, 0), Vector(0, 0, 1), 1.1),
    Part.Circle(Vector(22, -34.5, 0), Vector(0, 0, 1), 1.1),
], False)
sketch11.addConstraint([
    Sketcher.Constraint("Equal", 0, 1),
    Sketcher.Constraint("Equal", 1, 2),
    Sketcher.Constraint("Equal", 2, 3),
    Sketcher.Constraint("Symmetric", 0, 3, 2, 3, -1, 1),
    Sketcher.Constraint("Symmetric", 1, 3, 3, 3, -1, 1),
    Sketcher.Constraint("Symmetric", 0, 3, 1, 3, -2),
    Sketcher.Constraint("Diameter", 0, 2.2),
    Sketcher.Constraint("DistanceX", -1, 1, 0, 3, 22.0),
    Sketcher.Constraint("DistanceY", 2, 3, 1, 3, 69.0),
])
pocket7 = body.newObject("PartDesign::Pocket", "Pocket006")
pocket7.Profile = sketch11
pocket7.Length = 10
pocket7.Reversed = True

doc.recompute()
